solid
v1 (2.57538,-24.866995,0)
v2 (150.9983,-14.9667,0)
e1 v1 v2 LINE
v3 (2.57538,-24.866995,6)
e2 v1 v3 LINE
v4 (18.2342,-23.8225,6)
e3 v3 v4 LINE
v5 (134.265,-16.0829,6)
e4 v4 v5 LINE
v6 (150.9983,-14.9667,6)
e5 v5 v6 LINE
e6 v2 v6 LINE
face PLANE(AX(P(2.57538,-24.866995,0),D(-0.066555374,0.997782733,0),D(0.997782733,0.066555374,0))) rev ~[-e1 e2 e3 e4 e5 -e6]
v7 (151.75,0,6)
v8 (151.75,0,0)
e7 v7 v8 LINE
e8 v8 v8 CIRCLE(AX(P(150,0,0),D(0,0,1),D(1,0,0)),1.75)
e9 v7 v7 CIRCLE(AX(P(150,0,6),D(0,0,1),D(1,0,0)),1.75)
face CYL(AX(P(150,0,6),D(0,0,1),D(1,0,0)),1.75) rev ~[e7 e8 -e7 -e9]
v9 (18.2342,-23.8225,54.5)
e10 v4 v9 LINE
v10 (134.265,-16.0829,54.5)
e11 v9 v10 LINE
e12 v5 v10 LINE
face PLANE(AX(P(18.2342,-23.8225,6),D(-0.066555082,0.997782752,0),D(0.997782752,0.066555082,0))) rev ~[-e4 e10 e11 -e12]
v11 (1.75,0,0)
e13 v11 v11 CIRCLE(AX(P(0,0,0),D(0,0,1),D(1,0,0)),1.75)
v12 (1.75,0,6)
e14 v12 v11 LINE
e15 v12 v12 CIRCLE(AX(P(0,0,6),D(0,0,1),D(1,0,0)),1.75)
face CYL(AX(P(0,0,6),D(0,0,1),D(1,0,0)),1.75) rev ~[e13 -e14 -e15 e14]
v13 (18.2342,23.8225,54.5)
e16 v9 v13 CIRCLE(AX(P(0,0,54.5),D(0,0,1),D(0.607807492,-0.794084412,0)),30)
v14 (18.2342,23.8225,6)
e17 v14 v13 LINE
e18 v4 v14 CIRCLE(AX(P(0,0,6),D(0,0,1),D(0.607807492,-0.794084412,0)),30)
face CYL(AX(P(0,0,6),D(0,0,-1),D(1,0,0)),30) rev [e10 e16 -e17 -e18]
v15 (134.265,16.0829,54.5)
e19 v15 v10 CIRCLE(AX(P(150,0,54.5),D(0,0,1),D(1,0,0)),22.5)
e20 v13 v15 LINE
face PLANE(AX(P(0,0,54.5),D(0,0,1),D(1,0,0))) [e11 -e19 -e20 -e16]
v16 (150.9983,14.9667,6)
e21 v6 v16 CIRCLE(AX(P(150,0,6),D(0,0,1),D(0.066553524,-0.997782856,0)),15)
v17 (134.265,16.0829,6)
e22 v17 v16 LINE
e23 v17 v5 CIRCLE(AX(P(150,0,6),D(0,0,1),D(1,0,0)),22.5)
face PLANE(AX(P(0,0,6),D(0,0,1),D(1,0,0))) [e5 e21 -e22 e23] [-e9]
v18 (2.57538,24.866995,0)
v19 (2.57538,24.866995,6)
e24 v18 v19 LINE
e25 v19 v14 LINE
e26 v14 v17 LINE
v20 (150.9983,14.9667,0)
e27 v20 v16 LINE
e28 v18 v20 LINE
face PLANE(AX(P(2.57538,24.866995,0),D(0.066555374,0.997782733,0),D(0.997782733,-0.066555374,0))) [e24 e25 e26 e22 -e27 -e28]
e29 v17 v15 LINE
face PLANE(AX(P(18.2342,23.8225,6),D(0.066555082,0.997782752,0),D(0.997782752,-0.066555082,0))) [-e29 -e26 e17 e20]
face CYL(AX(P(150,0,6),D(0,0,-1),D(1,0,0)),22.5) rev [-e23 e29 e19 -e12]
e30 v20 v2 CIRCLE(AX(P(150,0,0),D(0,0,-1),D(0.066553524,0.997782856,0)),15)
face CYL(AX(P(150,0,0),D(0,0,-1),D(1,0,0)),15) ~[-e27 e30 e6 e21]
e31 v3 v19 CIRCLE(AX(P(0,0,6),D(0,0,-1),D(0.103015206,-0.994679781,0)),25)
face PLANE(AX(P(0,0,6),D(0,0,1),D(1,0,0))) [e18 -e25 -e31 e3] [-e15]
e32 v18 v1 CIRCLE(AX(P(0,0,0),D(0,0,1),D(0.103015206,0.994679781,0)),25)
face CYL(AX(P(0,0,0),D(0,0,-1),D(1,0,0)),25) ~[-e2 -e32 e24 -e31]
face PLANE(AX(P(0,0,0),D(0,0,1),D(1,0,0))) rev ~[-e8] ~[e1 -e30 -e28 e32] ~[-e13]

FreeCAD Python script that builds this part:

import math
import FreeCAD as App
import Part
import Sketcher
from FreeCAD import Vector

doc = App.newDocument("Part")
body = doc.addObject("PartDesign::Body", "Body")

sketch1 = body.newObject("Sketcher::SketchObject", "Sketch")
sketch1.AttachmentSupport = (doc.getObject("XY_Plane"), [""])
sketch1.MapMode = "FlatFace"
sketch1.addGeometry(Part.LineSegment(Vector(2.57538, -24.866995, 0), Vector(150.9983, -14.9667, 0)), False)
sketch1.addGeometry(Part.ArcOfCircle(Part.Circle(Vector(150, 0, 0), Vector(0, 0, 1), 15), math.radians(-86.183943), math.radians(86.183943)), False)
sketch1.addGeometry(Part.LineSegment(Vector(150.9983, 14.9667, 0), Vector(2.57538, 24.866995, 0)), False)
sketch1.addGeometry(Part.ArcOfCircle(Part.Circle(Vector(0, 0, 0), Vector(0, 0, 1), 25), math.radians(84.087174), math.radians(275.912826)), False)
sketch1.addConstraint(Sketcher.Constraint("Tangent", 0, 2, 1, 1))
sketch1.addConstraint(Sketcher.Constraint("Tangent", 1, 2, 2, 1))
sketch1.addConstraint(Sketcher.Constraint("Coincident", 2, 2, 3, 1))
sketch1.addConstraint(Sketcher.Constraint("Coincident", 3, 2, 0, 1))
sketch1.addConstraint(Sketcher.Constraint("Coincident", 3, 3, -1, 1))
sketch1.addConstraint(Sketcher.Constraint("Symmetric", 0, 2, 1, 2, -1))
sketch1.addConstraint(Sketcher.Constraint("Radius", 1, 15.0))
sketch1.addConstraint(Sketcher.Constraint("Radius", 3, 25.0))
sketch1.addConstraint(Sketcher.Constraint("DistanceX", -1, 1, 1, 3, 150.0))
sketch1.addConstraint(Sketcher.Constraint("DistanceY", -1, 1, 2, 2, 24.867))
pad1 = body.newObject("PartDesign::Pad", "Pad")
pad1.Profile = sketch1
pad1.Length = 6

sketch2 = body.newObject("Sketcher::SketchObject", "Sketch001")
sketch2.AttachmentSupport = (doc.getObject("XY_Plane"), [""])
sketch2.MapMode = "FlatFace"
sketch2.AttachmentOffset = App.Placement(Vector(0, 0, 6), App.Rotation())
sketch2.addGeometry(Part.Circle(Vector(0, 0, 0), Vector(0, 0, 1), 1.75), False)
sketch2.addGeometry(Part.Circle(Vector(150, 0, 0), Vector(0, 0, 1), 1.75), False)
sketch2.addConstraint(Sketcher.Constraint("Coincident", 0, 3, -1, 1))
sketch2.addConstraint(Sketcher.Constraint("Equal", 0, 1))
sketch2.addConstraint(Sketcher.Constraint("PointOnObject", 1, 3, -1))
sketch2.addConstraint(Sketcher.Constraint("Diameter", 0, 3.5))
sketch2.addConstraint(Sketcher.Constraint("DistanceX", -1, 1, 1, 3, 150.0))
pocket1 = body.newObject("PartDesign::Pocket", "Pocket")
pocket1.Profile = sketch2
pocket1.Length = 6

sketch3 = body.newObject("Sketcher::SketchObject", "Sketch002")
sketch3.AttachmentSupport = (doc.getObject("XY_Plane"), [""])
sketch3.MapMode = "FlatFace"
sketch3.AttachmentOffset = App.Placement(Vector(0, 0, 6), App.Rotation())
sketch3.addGeometry(Part.ArcOfCircle(Part.Circle(Vector(0, 0, 0), Vector(0, 0, 1), 30), math.radians(-52.568861), math.radians(52.568861)), False)
sketch3.addGeometry(Part.LineSegment(Vector(18.2342, -23.8225, 0), Vector(134.265, -16.0829, 0)), False)
sketch3.addGeometry(Part.ArcOfCircle(Part.Circle(Vector(150, 0, 0), Vector(0, 0, 1), 22.5), math.radians(134.373547), math.radians(225.626453)), False)
sketch3.addGeometry(Part.LineSegment(Vector(134.265, 16.0829, 0), Vector(18.2342, 23.8225, 0)), False)
sketch3.addConstraint(Sketcher.Constraint("Coincident", 0, 1, 1, 1))
sketch3.addConstraint(Sketcher.Constraint("Coincident", 1, 2, 2, 2))
sketch3.addConstraint(Sketcher.Constraint("Coincident", 2, 1, 3, 1))
sketch3.addConstraint(Sketcher.Constraint("Coincident", 3, 2, 0, 2))
sketch3.addConstraint(Sketcher.Constraint("Coincident", 0, 3, -1, 1))
sketch3.addConstraint(Sketcher.Constraint("Symmetric", 1, 2, 2, 1, -1))
sketch3.addConstraint(Sketcher.Constraint("Vertical", 0, 1, 3, 2))
sketch3.addConstraint(Sketcher.Constraint("Radius", 0, 30.0))
sketch3.addConstraint(Sketcher.Constraint("Radius", 2, 22.5))
sketch3.addConstraint(Sketcher.Constraint("DistanceX", -1, 1, 2, 3, 150.0))
sketch3.addConstraint(Sketcher.Constraint("DistanceX", -1, 1, 1, 2, 134.265))
sketch3.addConstraint(Sketcher.Constraint("DistanceY", 0, 1, 3, 2, 47.645))
pad2 = body.newObject("PartDesign::Pad", "Pad001")
pad2.Profile = sketch3
pad2.Length = 48.5

doc.recompute()
